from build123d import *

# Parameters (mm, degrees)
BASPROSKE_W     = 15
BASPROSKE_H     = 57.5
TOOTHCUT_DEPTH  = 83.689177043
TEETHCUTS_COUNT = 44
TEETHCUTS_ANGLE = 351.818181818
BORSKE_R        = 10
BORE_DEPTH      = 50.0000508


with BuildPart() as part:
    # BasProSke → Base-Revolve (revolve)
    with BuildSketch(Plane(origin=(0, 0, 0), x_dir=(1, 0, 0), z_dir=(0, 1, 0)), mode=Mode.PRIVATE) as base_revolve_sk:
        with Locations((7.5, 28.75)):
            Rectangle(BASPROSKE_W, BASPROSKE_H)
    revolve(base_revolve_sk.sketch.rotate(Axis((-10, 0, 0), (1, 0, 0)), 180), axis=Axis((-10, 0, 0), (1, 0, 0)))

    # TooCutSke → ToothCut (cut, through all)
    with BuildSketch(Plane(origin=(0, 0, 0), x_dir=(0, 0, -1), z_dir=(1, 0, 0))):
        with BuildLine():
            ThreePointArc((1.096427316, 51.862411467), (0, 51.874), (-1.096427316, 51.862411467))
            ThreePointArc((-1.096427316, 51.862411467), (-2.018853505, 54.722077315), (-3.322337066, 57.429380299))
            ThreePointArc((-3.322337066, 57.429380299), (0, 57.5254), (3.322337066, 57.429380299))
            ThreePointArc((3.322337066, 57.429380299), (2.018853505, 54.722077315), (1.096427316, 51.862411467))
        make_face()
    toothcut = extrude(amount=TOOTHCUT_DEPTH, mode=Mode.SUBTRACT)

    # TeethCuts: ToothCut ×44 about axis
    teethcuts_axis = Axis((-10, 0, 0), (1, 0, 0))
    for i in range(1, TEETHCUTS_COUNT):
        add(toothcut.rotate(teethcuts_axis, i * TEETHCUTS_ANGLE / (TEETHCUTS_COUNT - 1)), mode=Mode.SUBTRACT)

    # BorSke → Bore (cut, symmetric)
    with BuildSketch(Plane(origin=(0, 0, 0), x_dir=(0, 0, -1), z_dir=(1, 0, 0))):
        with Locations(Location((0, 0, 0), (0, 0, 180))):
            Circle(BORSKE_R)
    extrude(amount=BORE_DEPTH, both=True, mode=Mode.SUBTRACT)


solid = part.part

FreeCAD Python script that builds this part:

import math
import FreeCAD as App
import Part
import Sketcher

V = App.Vector
Q = App.Units.Quantity

doc = App.newDocument("Part")
body = doc.addObject("PartDesign::Body", "Body")

# Sketch on XZ plane
sketch1 = body.newObject("Sketcher::SketchObject", "Sketch")
sketch1.AttachmentSupport = (doc.getObject("XZ_Plane"), [""])
sketch1.MapMode = "FlatFace"
sketch1.addGeometry(Part.LineSegment(V(0, -58, 0), V(0, 0, 0)), False)
sketch1.addGeometry(Part.LineSegment(V(0, 0, 0), V(15, 0, 0)), False)
sketch1.addGeometry(Part.LineSegment(V(15, 0, 0), V(15, -58, 0)), False)
sketch1.addGeometry(Part.LineSegment(V(15, -58, 0), V(0, -58, 0)), False)
sketch1.addConstraint(Sketcher.Constraint("Coincident", 0, 2, 1, 1))
sketch1.addConstraint(Sketcher.Constraint("Coincident", 1, 2, 2, 1))
sketch1.addConstraint(Sketcher.Constraint("Coincident", 2, 2, 3, 1))
sketch1.addConstraint(Sketcher.Constraint("Coincident", 3, 2, 0, 1))
sketch1.addConstraint(Sketcher.Constraint("Vertical", 0))
sketch1.addConstraint(Sketcher.Constraint("Horizontal", 1))
sketch1.addConstraint(Sketcher.Constraint("Vertical", 2))
sketch1.addConstraint(Sketcher.Constraint("Horizontal", 3))
sketch1.addConstraint(Sketcher.Constraint("Coincident", 0, 2, -1, 1))
sketch1.addConstraint(Sketcher.Constraint("DistanceX", 1, 1, 1, 2, Q("15 mm")))
sketch1.addConstraint(Sketcher.Constraint("DistanceY", 0, 1, 0, 2, Q("57.5 mm")))
revolution = body.newObject("PartDesign::Revolution", "Revolution")
revolution.Profile = sketch1
revolution.ReferenceAxis = (sketch1, ["H_Axis"])
revolution.Angle = 360

# Sketch on YZ plane
sketch2 = body.newObject("Sketcher::SketchObject", "Sketch001")
sketch2.AttachmentSupport = (doc.getObject("YZ_Plane"), [""])
sketch2.MapMode = "FlatFace"
sketch2.addGeometry(Part.ArcOfCircle(Part.Circle(V(0, 0, 0), V(0, 0, 1), 51.9), math.radians(-1.21), math.radians(1.21)), False)
sketch2.addGeometry(Part.ArcOfCircle(Part.Circle(V(46.6, -22.4, 0), V(0, 0, 1), 22), math.radians(60.37), math.radians(76.04)), False)
sketch2.addGeometry(Part.ArcOfCircle(Part.Circle(V(0, 0, 0), V(0, 0, 1), 57.5), math.radians(-3.31), math.radians(3.31)), False)
sketch2.addGeometry(Part.ArcOfCircle(Part.Circle(V(46.6, 22.4, 0), V(0, 0, 1), 22), math.radians(-76.04), math.radians(-60.37)), False)
sketch2.addConstraint(Sketcher.Constraint("Coincident", 0, 1, 1, 2))
sketch2.addConstraint(Sketcher.Constraint("Coincident", 1, 1, 2, 1))
sketch2.addConstraint(Sketcher.Constraint("Coincident", 2, 2, 3, 2))
sketch2.addConstraint(Sketcher.Constraint("Coincident", 3, 1, 0, 2))
sketch2.addConstraint(Sketcher.Constraint("Coincident", 0, 3, -1, 1))
sketch2.addConstraint(Sketcher.Constraint("Coincident", 2, 3, -1, 1))
sketch2.addConstraint(Sketcher.Constraint("Equal", 1, 3))
sketch2.addConstraint(Sketcher.Constraint("Symmetric", 1, 3, 3, 3, -1))
sketch2.addConstraint(Sketcher.Constraint("Radius", 1, Q("22 mm")))
sketch2.addConstraint(Sketcher.Constraint("Radius", 0, Q("51.874001 mm")))
sketch2.addConstraint(Sketcher.Constraint("Radius", 2, Q("57.5254 mm")))
sketch2.addConstraint(Sketcher.Constraint("DistanceX", -1, 1, 1, 3, Q("46.554259 mm")))
sketch2.addConstraint(Sketcher.Constraint("DistanceY", 1, 3, -1, 1, Q("22.446451 mm")))
pocket1 = body.newObject("PartDesign::Pocket", "Pocket")
pocket1.Profile = sketch2
pocket1.Type = "ThroughAll"
pocket1.Reversed = True
doc.recompute()

polarpattern = body.newObject("PartDesign::PolarPattern", "PolarPattern")
polarpattern.Originals = [pocket1]
polarpattern.Axis = (doc.getObject("X_Axis"), [""])
polarpattern.Angle = 360
polarpattern.Occurrences = 44
body.Tip = polarpattern

# Sketch on YZ plane
sketch3 = body.newObject("Sketcher::SketchObject", "Sketch002")
sketch3.AttachmentSupport = (doc.getObject("YZ_Plane"), [""])
sketch3.MapMode = "FlatFace"
sketch3.addGeometry(Part.Circle(V(0, 0, 0), V(0, 0, 1), 10), False)
sketch3.addConstraint(Sketcher.Constraint("Coincident", 0, 3, -1, 1))
sketch3.addConstraint(Sketcher.Constraint("Diameter", 0, Q("20 mm")))
pocket2 = body.newObject("PartDesign::Pocket", "Pocket001")
pocket2.Profile = sketch3
pocket2.Length = 100.000102
pocket2.Midplane = True

doc.recompute()
